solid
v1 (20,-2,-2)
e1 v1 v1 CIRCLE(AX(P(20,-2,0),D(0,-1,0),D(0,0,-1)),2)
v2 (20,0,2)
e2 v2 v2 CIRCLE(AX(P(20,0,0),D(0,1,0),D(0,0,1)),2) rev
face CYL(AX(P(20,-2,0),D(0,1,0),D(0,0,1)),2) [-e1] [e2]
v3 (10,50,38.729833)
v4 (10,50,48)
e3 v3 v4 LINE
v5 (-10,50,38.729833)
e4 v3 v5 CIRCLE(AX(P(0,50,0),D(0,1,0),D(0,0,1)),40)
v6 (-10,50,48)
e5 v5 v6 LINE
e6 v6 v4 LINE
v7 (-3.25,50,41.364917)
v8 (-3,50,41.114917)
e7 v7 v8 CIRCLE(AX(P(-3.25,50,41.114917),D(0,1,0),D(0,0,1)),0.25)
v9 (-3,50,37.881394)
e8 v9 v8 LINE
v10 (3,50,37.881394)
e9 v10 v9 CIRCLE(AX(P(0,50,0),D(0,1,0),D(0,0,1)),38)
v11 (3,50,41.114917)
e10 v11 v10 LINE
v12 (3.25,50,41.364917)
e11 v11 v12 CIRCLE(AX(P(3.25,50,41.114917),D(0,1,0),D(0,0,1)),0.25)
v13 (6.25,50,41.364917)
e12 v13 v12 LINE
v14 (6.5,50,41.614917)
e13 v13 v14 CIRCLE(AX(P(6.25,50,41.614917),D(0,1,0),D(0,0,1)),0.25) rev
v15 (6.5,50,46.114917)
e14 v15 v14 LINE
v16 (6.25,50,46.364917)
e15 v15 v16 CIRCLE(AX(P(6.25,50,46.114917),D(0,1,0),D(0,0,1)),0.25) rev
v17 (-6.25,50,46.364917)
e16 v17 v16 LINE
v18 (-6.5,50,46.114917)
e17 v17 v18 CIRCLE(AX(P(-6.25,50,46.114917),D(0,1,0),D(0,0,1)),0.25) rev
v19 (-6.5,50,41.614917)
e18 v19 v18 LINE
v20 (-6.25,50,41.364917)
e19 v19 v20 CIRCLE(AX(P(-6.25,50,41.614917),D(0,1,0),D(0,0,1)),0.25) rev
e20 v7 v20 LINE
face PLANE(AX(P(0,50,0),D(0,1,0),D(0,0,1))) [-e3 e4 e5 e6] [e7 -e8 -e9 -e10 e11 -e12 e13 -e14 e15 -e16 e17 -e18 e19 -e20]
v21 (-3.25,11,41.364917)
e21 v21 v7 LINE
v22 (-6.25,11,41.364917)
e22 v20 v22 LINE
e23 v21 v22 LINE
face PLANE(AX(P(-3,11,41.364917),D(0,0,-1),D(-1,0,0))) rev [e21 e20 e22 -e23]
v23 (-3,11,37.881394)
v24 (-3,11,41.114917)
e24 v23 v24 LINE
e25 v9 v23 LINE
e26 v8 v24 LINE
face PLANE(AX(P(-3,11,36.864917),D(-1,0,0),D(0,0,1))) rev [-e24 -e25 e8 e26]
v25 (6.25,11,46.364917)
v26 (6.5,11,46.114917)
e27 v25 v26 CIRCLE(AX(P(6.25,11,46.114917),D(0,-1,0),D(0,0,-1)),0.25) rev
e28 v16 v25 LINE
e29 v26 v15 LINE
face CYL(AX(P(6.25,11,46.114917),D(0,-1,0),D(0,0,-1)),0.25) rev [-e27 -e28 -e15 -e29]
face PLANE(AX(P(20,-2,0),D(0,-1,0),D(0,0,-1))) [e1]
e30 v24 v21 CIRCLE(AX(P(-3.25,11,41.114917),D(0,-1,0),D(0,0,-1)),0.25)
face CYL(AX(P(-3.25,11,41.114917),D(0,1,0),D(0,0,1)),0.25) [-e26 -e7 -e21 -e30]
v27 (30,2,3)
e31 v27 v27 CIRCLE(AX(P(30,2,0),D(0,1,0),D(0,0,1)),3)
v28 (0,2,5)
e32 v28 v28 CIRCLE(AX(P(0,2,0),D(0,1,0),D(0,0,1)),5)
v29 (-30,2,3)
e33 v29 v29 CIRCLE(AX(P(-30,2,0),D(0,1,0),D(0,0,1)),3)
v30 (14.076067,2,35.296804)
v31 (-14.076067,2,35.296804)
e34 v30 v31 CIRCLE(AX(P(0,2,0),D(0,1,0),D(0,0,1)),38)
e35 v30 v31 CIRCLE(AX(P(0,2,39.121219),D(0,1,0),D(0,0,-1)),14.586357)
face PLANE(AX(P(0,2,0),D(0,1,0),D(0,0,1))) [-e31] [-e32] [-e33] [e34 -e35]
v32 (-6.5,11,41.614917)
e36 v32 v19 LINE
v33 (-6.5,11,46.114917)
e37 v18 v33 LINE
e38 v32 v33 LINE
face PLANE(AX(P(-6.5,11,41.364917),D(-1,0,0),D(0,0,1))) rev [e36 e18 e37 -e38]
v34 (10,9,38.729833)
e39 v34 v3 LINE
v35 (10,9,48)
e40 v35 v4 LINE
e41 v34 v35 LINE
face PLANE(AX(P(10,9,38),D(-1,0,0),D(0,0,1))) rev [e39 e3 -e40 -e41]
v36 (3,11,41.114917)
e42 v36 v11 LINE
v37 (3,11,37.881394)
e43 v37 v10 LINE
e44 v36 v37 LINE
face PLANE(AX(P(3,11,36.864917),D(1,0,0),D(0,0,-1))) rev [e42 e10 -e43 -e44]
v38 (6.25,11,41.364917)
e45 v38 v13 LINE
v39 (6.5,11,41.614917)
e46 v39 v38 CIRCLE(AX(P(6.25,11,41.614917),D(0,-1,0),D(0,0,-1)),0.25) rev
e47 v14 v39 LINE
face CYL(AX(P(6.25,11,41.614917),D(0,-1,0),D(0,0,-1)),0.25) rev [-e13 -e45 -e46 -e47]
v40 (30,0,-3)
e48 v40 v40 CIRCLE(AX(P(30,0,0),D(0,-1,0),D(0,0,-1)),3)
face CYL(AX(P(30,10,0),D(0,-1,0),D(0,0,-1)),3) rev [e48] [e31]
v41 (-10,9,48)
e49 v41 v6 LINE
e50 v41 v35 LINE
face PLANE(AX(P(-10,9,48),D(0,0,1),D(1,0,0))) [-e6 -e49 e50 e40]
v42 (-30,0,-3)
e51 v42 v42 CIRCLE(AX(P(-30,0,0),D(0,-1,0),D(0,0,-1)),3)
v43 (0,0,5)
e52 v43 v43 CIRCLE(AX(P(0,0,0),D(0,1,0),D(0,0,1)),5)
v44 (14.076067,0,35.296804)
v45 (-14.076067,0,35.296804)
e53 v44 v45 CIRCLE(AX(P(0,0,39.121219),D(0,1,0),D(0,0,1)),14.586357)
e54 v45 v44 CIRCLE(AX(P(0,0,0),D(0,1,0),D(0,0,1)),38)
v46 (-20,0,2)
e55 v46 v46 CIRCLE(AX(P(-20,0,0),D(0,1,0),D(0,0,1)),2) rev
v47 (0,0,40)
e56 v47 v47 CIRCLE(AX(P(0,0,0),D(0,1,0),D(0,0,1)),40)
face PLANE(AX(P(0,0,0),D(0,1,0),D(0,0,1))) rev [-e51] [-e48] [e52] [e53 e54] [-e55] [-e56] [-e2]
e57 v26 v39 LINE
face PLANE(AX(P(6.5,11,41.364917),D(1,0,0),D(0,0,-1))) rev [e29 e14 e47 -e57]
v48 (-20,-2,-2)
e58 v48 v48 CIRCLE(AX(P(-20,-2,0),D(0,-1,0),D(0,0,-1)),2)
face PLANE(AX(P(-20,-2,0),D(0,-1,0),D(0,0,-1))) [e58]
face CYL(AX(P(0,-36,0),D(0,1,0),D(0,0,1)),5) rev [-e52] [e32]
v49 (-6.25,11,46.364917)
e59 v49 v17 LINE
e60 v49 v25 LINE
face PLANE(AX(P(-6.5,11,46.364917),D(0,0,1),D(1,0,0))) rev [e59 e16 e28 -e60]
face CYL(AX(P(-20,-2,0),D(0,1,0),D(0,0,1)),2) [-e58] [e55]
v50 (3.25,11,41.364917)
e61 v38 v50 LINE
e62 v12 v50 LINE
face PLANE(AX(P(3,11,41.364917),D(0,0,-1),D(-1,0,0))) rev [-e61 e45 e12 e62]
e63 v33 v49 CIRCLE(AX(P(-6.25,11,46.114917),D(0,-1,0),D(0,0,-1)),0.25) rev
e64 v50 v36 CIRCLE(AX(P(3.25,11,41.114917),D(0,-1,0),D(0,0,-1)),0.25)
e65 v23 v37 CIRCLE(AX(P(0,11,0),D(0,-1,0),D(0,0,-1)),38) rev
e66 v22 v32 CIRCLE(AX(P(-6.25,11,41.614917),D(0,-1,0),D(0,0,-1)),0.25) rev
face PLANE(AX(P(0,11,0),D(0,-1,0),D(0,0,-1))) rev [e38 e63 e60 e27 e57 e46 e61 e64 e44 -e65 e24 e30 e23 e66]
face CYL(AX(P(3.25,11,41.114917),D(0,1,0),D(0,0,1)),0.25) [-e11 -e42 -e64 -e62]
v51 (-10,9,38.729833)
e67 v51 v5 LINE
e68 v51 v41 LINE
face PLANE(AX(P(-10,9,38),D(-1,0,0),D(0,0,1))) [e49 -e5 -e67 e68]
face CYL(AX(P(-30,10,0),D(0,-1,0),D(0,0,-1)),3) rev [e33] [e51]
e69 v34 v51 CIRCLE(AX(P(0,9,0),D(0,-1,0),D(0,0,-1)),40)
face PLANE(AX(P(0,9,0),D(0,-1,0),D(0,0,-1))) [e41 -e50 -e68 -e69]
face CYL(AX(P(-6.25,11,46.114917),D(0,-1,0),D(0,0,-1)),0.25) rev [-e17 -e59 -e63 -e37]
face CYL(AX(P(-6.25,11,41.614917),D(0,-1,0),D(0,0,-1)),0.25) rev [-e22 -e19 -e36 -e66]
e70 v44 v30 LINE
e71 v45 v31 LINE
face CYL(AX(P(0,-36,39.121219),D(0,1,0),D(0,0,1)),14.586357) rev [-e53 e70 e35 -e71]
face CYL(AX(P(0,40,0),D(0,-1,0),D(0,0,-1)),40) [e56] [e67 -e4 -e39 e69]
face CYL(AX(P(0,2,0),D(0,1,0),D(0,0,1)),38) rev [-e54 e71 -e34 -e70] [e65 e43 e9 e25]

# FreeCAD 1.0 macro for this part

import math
import FreeCAD as App
import Part
import Sketcher

V = App.Vector
Q = App.Units.Quantity


def edges_at(feature, points):
    """Names of the edges that pass closest to the given points."""
    edges = feature.Shape.Edges
    near = lambda p: min(range(len(edges)), key=lambda i: edges[i].distToShape(Part.Vertex(*p))[0])
    return sorted({f"Edge{near(p) + 1}" for p in points})

doc = App.newDocument("Part")
body = doc.addObject("PartDesign::Body", "Body")

# Sketch on XZ plane
sketch1 = doc.addObject("Sketcher::SketchObject", "Sketch")
body.addObject(sketch1)
sketch1.AttachmentSupport = (doc.XZ_Plane, [""])
sketch1.MapMode = "FlatFace"
sketch1.addGeometry(Part.Circle(V(0, 0, 0), V(0, 0, 1), 40), False)
sketch1.addConstraint([
    Sketcher.Constraint("Coincident", 0, 3, -1, 1),
    Sketcher.Constraint("Diameter", 0, Q("80 mm")),
])
pad1 = doc.addObject("PartDesign::Pad", "Pad")
body.addObject(pad1)
pad1.Profile = sketch1
pad1.Length = 40
pad1.Reversed = True

# Sketch on XZ plane
sketch2 = doc.addObject("Sketcher::SketchObject", "Sketch001")
body.addObject(sketch2)
sketch2.AttachmentSupport = (doc.XZ_Plane, [""])
sketch2.MapMode = "FlatFace"
sketch2.AttachmentOffset = App.Placement(V(0, 0, -40), App.Rotation())
sketch2.addGeometry(Part.Circle(V(0, 0, 0), V(0, 0, 1), 38), False)
sketch2.addConstraint([
    Sketcher.Constraint("Coincident", 0, 3, -1, 1),
    Sketcher.Constraint("Diameter", 0, Q("76 mm")),
])
pocket1 = doc.addObject("PartDesign::Pocket", "Pocket")
body.addObject(pocket1)
pocket1.Profile = sketch2
pocket1.Length = 38
pocket1.Reversed = True

# Sketch on XZ plane
sketch3 = doc.addObject("Sketcher::SketchObject", "Sketch002")
body.addObject(sketch3)
sketch3.AttachmentSupport = (doc.XZ_Plane, [""])
sketch3.MapMode = "FlatFace"
sketch3.AttachmentOffset = App.Placement(V(0, 0, -2), App.Rotation())
sketch3.addGeometry([
    Part.ArcOfCircle(Part.Circle(V(0, 39, 0), V(0, 0, 1), 15), math.radians(-165), math.radians(-15)),
    Part.ArcOfCircle(Part.Circle(V(0, 0, 0), V(0, 0, 1), 38), math.radians(68), math.radians(112)),
], False)
sketch3.addConstraint([
    Sketcher.Constraint("Coincident", 0, 1, 1, 2),
    Sketcher.Constraint("Coincident", 1, 1, 0, 2),
    Sketcher.Constraint("Coincident", 1, 3, -1, 1),
    Sketcher.Constraint("PointOnObject", 0, 3, -2),
    Sketcher.Constraint("Radius", 1, Q("38 mm")),
    Sketcher.Constraint("Radius", 0, Q("14.586357 mm")),
    Sketcher.Constraint("DistanceY", -1, 1, 0, 3, Q("39.121219 mm")),
])
pocket2 = doc.addObject("PartDesign::Pocket", "Pocket001")
body.addObject(pocket2)
pocket2.Profile = sketch3
pocket2.Length = 38
pocket2.Reversed = True

# Sketch on XZ plane
sketch4 = doc.addObject("Sketcher::SketchObject", "Sketch003")
body.addObject(sketch4)
sketch4.AttachmentSupport = (doc.XZ_Plane, [""])
sketch4.MapMode = "FlatFace"
sketch4.AttachmentOffset = App.Placement(V(0, 0, -2), App.Rotation())
sketch4.addGeometry(Part.Circle(V(0, 0, 0), V(0, 0, 1), 5), False)
sketch4.addConstraint([
    Sketcher.Constraint("Coincident", 0, 3, -1, 1),
    Sketcher.Constraint("Diameter", 0, Q("10 mm")),
])
pocket3 = doc.addObject("PartDesign::Pocket", "Pocket002")
body.addObject(pocket3)
pocket3.Profile = sketch4
pocket3.Length = 38
pocket3.Reversed = True

# Sketch on XZ plane
sketch5 = doc.addObject("Sketcher::SketchObject", "Sketch004")
body.addObject(sketch5)
sketch5.AttachmentSupport = (doc.XZ_Plane, [""])
sketch5.MapMode = "FlatFace"
sketch5.addGeometry([
    Part.Circle(V(-20, 0, 0), V(0, 0, 1), 2),
    Part.Circle(V(20, 0, 0), V(0, 0, 1), 2),
], False)
sketch5.addConstraint([
    Sketcher.Constraint("Equal", 0, 1),
    Sketcher.Constraint("Symmetric", 0, 3, 1, 3, -1, 1),
    Sketcher.Constraint("PointOnObject", 0, 3, -1),
    Sketcher.Constraint("Diameter", 0, Q("4 mm")),
    Sketcher.Constraint("DistanceX", 0, 3, -1, 1, Q("20 mm")),
])
pad2 = doc.addObject("PartDesign::Pad", "Pad001")
body.addObject(pad2)
pad2.Profile = sketch5
pad2.Length = 2

# Sketch on XZ plane
sketch6 = doc.addObject("Sketcher::SketchObject", "Sketch005")
body.addObject(sketch6)
sketch6.AttachmentSupport = (doc.XZ_Plane, [""])
sketch6.MapMode = "FlatFace"
sketch6.AttachmentOffset = App.Placement(V(0, 0, -50), App.Rotation())
sketch6.addGeometry([
    Part.Circle(V(0, 0, 0), V(0, 0, 1), 40),
    Part.Circle(V(0, 0, 0), V(0, 0, 1), 38),
], False)
sketch6.addConstraint([
    Sketcher.Constraint("Coincident", 0, 3, -1, 1),
    Sketcher.Constraint("Coincident", 1, 3, -1, 1),
    Sketcher.Constraint("Diameter", 0, Q("80 mm")),
    Sketcher.Constraint("Diameter", 1, Q("76 mm")),
])
pad3 = doc.addObject("PartDesign::Pad", "Pad002")
body.addObject(pad3)
pad3.Profile = sketch6
pad3.Length = 10

# Sketch on XZ plane
sketch7 = doc.addObject("Sketcher::SketchObject", "Sketch006")
body.addObject(sketch7)
sketch7.AttachmentSupport = (doc.XZ_Plane, [""])
sketch7.MapMode = "FlatFace"
sketch7.AttachmentOffset = App.Placement(V(0, 0, -50), App.Rotation())
sketch7.addGeometry([
    Part.LineSegment(V(10, 38, 0), V(-10, 38, 0)),
    Part.LineSegment(V(-10, 38, 0), V(-10, 48, 0)),
    Part.LineSegment(V(-10, 48, 0), V(10, 48, 0)),
    Part.LineSegment(V(10, 48, 0), V(10, 38, 0)),
], False)
sketch7.addConstraint([
    Sketcher.Constraint("Coincident", 0, 2, 1, 1),
    Sketcher.Constraint("Coincident", 1, 2, 2, 1),
    Sketcher.Constraint("Coincident", 2, 2, 3, 1),
    Sketcher.Constraint("Coincident", 3, 2, 0, 1),
    Sketcher.Constraint("Horizontal", 0),
    Sketcher.Constraint("Vertical", 1),
    Sketcher.Constraint("Horizontal", 2),
    Sketcher.Constraint("Vertical", 3),
    Sketcher.Constraint("DistanceX", 0, 2, 0, 1, Q("20 mm")),
    Sketcher.Constraint("DistanceY", 1, 1, 1, 2, Q("10 mm")),
    Sketcher.Constraint("DistanceX", 0, 2, -1, 1, Q("10 mm")),
    Sketcher.Constraint("DistanceY", -1, 1, 0, 2, Q("38 mm")),
])
pad4 = doc.addObject("PartDesign::Pad", "Pad003")
body.addObject(pad4)
pad4.Profile = sketch7
pad4.Length = 41

# Sketch on XZ plane
sketch8 = doc.addObject("Sketcher::SketchObject", "Sketch007")
body.addObject(sketch8)
sketch8.AttachmentSupport = (doc.XZ_Plane, [""])
sketch8.MapMode = "FlatFace"
sketch8.AttachmentOffset = App.Placement(V(0, 0, -50), App.Rotation())
sketch8.addGeometry([
    Part.LineSegment(V(3, 36.9, 0), V(-3, 36.9, 0)),  # 0
    Part.LineSegment(V(-3, 36.9, 0), V(-3, 41.4, 0)),  # 1
    Part.LineSegment(V(-3, 41.4, 0), V(-6.5, 41.4, 0)),  # 2
    Part.LineSegment(V(-6.5, 41.4, 0), V(-6.5, 46.4, 0)),  # 3
    Part.LineSegment(V(-6.5, 46.4, 0), V(6.5, 46.4, 0)),  # 4
    Part.LineSegment(V(6.5, 46.4, 0), V(6.5, 41.4, 0)),  # 5
    Part.LineSegment(V(6.5, 41.4, 0), V(3, 41.4, 0)),  # 6
    Part.LineSegment(V(3, 41.4, 0), V(3, 36.9, 0)),  # 7
], False)
sketch8.addConstraint([
    Sketcher.Constraint("Coincident", 0, 2, 1, 1),
    Sketcher.Constraint("Coincident", 1, 2, 2, 1),
    Sketcher.Constraint("Coincident", 2, 2, 3, 1),
    Sketcher.Constraint("Coincident", 3, 2, 4, 1),
    Sketcher.Constraint("Coincident", 4, 2, 5, 1),
    Sketcher.Constraint("Coincident", 5, 2, 6, 1),
    Sketcher.Constraint("Coincident", 6, 2, 7, 1),
    Sketcher.Constraint("Coincident", 7, 2, 0, 1),
    Sketcher.Constraint("Horizontal", 0),
    Sketcher.Constraint("Vertical", 1),
    Sketcher.Constraint("Horizontal", 2),
    Sketcher.Constraint("Vertical", 3),
    Sketcher.Constraint("Horizontal", 4),
    Sketcher.Constraint("Vertical", 5),
    Sketcher.Constraint("Horizontal", 6),
    Sketcher.Constraint("Vertical", 7),
    Sketcher.Constraint("Symmetric", 2, 2, 5, 2, -2),
    Sketcher.Constraint("Equal", 2, 6),
    Sketcher.Constraint("DistanceX", 0, 2, 0, 1, Q("6 mm")),
    Sketcher.Constraint("DistanceX", 4, 1, 4, 2, Q("13 mm")),
    Sketcher.Constraint("DistanceY", 3, 1, 3, 2, Q("5 mm")),
    Sketcher.Constraint("DistanceY", 1, 1, 1, 2, Q("4.5 mm")),
    Sketcher.Constraint("DistanceY", -1, 1, 0, 2, Q("36.864917 mm")),
])
pocket4 = doc.addObject("PartDesign::Pocket", "Pocket003")
body.addObject(pocket4)
pocket4.Profile = sketch8
pocket4.Length = 39
pocket4.Reversed = True
doc.recompute()

fillet = doc.addObject("PartDesign::Fillet", "Fillet")
body.addObject(fillet)
fillet.Base = (pocket4, edges_at(pocket4, [
    (-3, 30.5, 41.365),
    (6.5, 30.5, 46.365),
    (-6.5, 30.5, 46.365),
    (-6.5, 30.5, 41.365),
    (3, 30.5, 41.365),
    (6.5, 30.5, 41.365),
]))
fillet.Radius = 0.25

# Sketch on XZ plane
sketch9 = doc.addObject("Sketcher::SketchObject", "Sketch008")
body.addObject(sketch9)
sketch9.AttachmentSupport = (doc.XZ_Plane, [""])
sketch9.MapMode = "FlatFace"
sketch9.addGeometry([
    Part.Circle(V(-30, 0, 0), V(0, 0, 1), 3),
    Part.Circle(V(30, 0, 0), V(0, 0, 1), 3),
], False)
sketch9.addConstraint([
    Sketcher.Constraint("Equal", 0, 1),
    Sketcher.Constraint("Symmetric", 0, 3, 1, 3, -1, 1),
    Sketcher.Constraint("PointOnObject", 0, 3, -1),
    Sketcher.Constraint("Diameter", 0, Q("6 mm")),
    Sketcher.Constraint("DistanceX", 0, 3, -1, 1, Q("30 mm")),
])
pocket5 = doc.addObject("PartDesign::Pocket", "Pocket004")
body.addObject(pocket5)
pocket5.Profile = sketch9
pocket5.Length = 10

doc.recompute()
